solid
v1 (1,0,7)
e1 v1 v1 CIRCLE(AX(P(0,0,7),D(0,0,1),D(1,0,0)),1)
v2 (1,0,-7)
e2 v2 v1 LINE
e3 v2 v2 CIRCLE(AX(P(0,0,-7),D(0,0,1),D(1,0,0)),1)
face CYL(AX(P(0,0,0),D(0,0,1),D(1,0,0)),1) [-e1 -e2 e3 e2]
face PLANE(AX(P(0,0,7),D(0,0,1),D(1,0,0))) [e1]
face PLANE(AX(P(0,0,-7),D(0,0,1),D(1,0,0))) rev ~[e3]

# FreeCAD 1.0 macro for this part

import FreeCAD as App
import Part
import Sketcher

V = App.Vector
Q = App.Units.Quantity

doc = App.newDocument("Part")
params = doc.addObject("Spreadsheet::Sheet", "Params")
for row, (alias, value) in enumerate([
    ("sketch1_diameter", "2 mm"),
    ("pad1_length", "14 mm"),
], start=1):
    params.set(f"A{row}", alias)
    params.set(f"B{row}", "=" + value)
    params.setAlias(f"B{row}", alias)

body = doc.addObject("PartDesign::Body", "Body")

# Sketch on XY plane
sketch1 = doc.addObject("Sketcher::SketchObject", "Sketch")
body.addObject(sketch1)
sketch1.AttachmentSupport = (doc.XY_Plane, [""])
sketch1.MapMode = "FlatFace"
sketch1.addGeometry(Part.Circle(V(0, 0, 0), V(0, 0, 1), 1), False)
sketch1.addConstraint(Sketcher.Constraint("Coincident", 0, 3, -1, 1))
sketch1.addConstraint(Sketcher.Constraint("Diameter", 0, Q("2 mm")))
sketch1.setExpression("Constraints[1]", "Params.sketch1_diameter")
pad1 = doc.addObject("PartDesign::Pad", "Pad")
body.addObject(pad1)
pad1.Profile = sketch1
pad1.setExpression("Length", "Params.pad1_length")
pad1.Midplane = True

doc.recompute()
